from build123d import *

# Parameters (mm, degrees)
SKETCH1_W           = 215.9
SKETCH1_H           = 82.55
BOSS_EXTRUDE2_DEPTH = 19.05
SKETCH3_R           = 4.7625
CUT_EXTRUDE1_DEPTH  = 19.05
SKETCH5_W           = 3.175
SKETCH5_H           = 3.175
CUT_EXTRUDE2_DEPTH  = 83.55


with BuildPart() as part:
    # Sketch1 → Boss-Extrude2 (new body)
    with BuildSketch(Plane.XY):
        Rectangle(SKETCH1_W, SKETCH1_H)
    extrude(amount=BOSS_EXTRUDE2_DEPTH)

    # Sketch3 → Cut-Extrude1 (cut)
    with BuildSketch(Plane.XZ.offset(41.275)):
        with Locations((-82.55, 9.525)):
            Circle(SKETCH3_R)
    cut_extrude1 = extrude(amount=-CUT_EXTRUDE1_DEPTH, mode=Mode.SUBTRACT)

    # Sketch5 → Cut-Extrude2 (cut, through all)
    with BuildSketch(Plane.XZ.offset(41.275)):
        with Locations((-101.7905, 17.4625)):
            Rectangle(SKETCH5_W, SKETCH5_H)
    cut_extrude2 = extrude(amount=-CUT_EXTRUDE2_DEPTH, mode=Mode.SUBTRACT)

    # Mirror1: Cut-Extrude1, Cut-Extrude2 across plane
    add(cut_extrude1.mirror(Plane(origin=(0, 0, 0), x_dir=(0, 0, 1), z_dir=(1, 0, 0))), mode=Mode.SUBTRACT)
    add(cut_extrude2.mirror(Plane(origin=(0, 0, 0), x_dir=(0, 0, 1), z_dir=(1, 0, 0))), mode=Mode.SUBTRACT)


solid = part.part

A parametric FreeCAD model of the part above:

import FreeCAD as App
import Part
import Sketcher
Q = App.Units.Quantity


def add_polygon(sketch, points):
    """Adds a closed chain of lines whose ends are joined by coincident constraints."""
    first, n = sketch.GeometryCount, len(points)
    for a, b in zip(points, points[1:] + points[:1]):
        sketch.addGeometry(Part.LineSegment(App.Vector(*a, 0), App.Vector(*b, 0)), False)
    for i in range(n):
        sketch.addConstraint(Sketcher.Constraint("Coincident", first + i, 2, first + (i + 1) % n, 1))

doc = App.newDocument("Part")
body = doc.addObject("PartDesign::Body", "Body")

# Sketch on XY plane
sketch1 = body.newObject("Sketcher::SketchObject", "Sketch")
sketch1.AttachmentSupport = (doc.getObject("XY_Plane"), [""])
sketch1.MapMode = "FlatFace"
add_polygon(sketch1, [(-108, 41), (-108, -41), (108, -41), (108, 41)])  # lines 0-3
sketch1.addConstraint([
    Sketcher.Constraint("Vertical", 0),
    Sketcher.Constraint("Horizontal", 1),
    Sketcher.Constraint("Vertical", 2),
    Sketcher.Constraint("Horizontal", 3),
    Sketcher.Constraint("Symmetric", 0, 2, 2, 2, -1, 1),
    Sketcher.Constraint("DistanceX", 1, 1, 1, 2, Q("8.5 in")),
    Sketcher.Constraint("DistanceY", 0, 2, 0, 1, Q("3.25 in")),
])
pad1 = body.newObject("PartDesign::Pad", "Pad")
pad1.Profile = sketch1
pad1.Length = Q("0.75 in")

# Sketch on XZ plane
sketch2 = body.newObject("Sketcher::SketchObject", "Sketch001")
sketch2.AttachmentSupport = (doc.getObject("XZ_Plane"), [""])
sketch2.MapMode = "FlatFace"
sketch2.AttachmentOffset = App.Placement(App.Vector(0, 0, 1.625 * 25.4), App.Rotation())
sketch2.addGeometry(Part.Circle(App.Vector(-82.5, 9.5, 0), App.Vector(0, 0, 1), 4.8), False)
sketch2.addConstraint([
    Sketcher.Constraint("Diameter", 0, Q("0.375 in")),
    Sketcher.Constraint("DistanceX", 0, 3, -1, 1, Q("3.25 in")),
    Sketcher.Constraint("DistanceY", -1, 1, 0, 3, Q("0.375 in")),
])
pocket1 = body.newObject("PartDesign::Pocket", "Pocket")
pocket1.Profile = sketch2
pocket1.Length = Q("0.75 in")

# Sketch on XZ plane
sketch3 = body.newObject("Sketcher::SketchObject", "Sketch002")
sketch3.AttachmentSupport = (doc.getObject("XZ_Plane"), [""])
sketch3.MapMode = "FlatFace"
sketch3.AttachmentOffset = App.Placement(App.Vector(0, 0, 1.625 * 25.4), App.Rotation())
add_polygon(sketch3, [(-103.4, 19.1), (-103.4, 15.9), (-100.2, 15.9), (-100.2, 19.1)])  # lines 0-3
sketch3.addConstraint([
    Sketcher.Constraint("Vertical", 0),
    Sketcher.Constraint("Horizontal", 1),
    Sketcher.Constraint("Vertical", 2),
    Sketcher.Constraint("Horizontal", 3),
    Sketcher.Constraint("Equal", 3, 0),
    Sketcher.Constraint("DistanceX", 1, 1, 1, 2, Q("0.125 in")),
    Sketcher.Constraint("DistanceX", 0, 2, -1, 1, Q("4.07 in")),
    Sketcher.Constraint("DistanceY", -1, 1, 2, 2, Q("0.75 in")),
])
pocket2 = body.newObject("PartDesign::Pocket", "Pocket001")
pocket2.Profile = sketch3
pocket2.Type = "ThroughAll"
doc.recompute()

mirrored = body.newObject("PartDesign::Mirrored", "Mirrored")
mirrored.Originals = [pocket1, pocket2]
mirrored.MirrorPlane = (doc.getObject("YZ_Plane"), [""])
body.Tip = mirrored

doc.recompute()
